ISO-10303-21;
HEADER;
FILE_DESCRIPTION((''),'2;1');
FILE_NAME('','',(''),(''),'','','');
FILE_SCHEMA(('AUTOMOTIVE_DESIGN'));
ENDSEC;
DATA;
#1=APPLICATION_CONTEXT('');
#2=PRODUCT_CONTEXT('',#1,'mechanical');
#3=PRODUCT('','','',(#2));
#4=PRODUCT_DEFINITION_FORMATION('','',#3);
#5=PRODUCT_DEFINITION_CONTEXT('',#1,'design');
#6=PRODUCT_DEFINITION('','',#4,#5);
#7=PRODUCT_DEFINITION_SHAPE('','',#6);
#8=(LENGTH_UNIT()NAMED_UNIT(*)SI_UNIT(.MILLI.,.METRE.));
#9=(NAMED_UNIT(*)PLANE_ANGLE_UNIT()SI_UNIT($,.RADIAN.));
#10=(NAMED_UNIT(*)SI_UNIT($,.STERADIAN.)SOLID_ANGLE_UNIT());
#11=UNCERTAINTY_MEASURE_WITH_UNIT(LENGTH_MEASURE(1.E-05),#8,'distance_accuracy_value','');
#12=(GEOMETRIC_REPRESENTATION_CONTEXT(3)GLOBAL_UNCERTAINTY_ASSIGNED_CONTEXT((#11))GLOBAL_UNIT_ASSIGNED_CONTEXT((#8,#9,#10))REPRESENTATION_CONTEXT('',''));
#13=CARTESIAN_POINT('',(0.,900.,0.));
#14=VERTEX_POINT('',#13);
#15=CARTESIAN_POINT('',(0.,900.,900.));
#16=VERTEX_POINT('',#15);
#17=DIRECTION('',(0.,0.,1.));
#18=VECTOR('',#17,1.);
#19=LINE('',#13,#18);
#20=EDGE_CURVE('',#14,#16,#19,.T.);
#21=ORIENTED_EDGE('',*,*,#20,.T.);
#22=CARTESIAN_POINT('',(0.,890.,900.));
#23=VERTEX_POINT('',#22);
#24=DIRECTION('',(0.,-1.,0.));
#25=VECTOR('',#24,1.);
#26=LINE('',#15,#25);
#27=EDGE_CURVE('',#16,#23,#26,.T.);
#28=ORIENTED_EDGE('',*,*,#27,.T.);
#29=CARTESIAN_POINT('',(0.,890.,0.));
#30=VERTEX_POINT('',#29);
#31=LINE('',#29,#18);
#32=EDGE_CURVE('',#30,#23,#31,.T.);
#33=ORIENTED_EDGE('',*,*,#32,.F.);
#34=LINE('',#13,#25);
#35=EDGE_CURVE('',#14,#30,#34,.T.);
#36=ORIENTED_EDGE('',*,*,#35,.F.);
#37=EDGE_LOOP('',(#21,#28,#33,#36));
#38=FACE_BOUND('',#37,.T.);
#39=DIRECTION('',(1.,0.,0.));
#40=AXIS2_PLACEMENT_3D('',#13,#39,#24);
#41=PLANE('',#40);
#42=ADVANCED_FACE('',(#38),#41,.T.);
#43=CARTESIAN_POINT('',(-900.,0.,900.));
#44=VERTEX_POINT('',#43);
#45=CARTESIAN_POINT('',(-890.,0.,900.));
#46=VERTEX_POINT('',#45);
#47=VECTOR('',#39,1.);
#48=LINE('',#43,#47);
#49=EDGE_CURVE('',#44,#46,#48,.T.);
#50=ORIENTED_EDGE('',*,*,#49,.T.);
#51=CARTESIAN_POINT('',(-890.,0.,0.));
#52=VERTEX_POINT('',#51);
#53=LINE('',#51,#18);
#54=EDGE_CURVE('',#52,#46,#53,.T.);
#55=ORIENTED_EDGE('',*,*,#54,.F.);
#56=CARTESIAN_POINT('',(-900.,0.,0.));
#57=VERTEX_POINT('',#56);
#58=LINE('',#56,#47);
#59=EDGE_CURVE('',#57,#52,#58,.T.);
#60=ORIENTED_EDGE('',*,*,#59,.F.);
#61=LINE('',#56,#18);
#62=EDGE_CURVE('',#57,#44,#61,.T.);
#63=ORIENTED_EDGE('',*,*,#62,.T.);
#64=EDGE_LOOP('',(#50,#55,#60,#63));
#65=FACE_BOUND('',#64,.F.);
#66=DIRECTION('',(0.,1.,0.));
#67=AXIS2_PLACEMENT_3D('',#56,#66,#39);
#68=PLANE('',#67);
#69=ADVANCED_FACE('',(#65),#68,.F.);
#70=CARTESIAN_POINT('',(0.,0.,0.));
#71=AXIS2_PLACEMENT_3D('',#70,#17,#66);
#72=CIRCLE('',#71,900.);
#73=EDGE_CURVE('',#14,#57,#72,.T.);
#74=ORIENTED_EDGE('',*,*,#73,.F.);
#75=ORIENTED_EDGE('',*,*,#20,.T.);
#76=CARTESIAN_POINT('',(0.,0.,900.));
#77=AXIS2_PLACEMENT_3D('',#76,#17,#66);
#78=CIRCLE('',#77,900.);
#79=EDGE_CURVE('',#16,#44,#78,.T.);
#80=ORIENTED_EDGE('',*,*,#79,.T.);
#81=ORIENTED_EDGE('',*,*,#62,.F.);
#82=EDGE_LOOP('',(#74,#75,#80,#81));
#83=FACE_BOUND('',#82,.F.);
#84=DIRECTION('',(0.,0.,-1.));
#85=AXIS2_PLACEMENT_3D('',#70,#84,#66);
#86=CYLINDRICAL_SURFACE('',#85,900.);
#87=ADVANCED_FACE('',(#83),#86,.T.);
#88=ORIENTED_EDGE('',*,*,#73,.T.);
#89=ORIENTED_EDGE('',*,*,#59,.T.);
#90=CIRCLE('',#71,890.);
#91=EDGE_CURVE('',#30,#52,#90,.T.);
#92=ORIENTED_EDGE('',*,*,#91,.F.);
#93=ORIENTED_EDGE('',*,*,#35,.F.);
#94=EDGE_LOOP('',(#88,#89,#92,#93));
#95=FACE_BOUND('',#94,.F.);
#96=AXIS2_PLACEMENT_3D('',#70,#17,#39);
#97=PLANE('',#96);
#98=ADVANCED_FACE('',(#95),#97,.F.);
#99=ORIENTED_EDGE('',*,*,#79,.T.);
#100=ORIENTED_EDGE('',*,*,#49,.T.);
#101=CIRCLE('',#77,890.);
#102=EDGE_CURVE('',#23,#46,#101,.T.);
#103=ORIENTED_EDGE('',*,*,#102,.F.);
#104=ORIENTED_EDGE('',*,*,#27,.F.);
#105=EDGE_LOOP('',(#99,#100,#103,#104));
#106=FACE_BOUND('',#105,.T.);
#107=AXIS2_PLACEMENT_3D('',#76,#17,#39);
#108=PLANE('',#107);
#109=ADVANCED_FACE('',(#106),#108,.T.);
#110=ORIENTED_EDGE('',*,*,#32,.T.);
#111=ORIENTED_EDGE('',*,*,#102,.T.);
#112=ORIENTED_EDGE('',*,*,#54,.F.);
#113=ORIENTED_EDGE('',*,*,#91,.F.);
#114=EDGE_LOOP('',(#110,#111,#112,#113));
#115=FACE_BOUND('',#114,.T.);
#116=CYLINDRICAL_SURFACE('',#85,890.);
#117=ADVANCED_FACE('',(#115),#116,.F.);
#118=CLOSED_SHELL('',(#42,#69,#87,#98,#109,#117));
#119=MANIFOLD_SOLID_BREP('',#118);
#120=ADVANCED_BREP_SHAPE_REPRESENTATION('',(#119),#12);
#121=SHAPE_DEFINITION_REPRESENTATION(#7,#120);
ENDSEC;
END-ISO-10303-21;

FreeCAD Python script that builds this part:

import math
import FreeCAD as App
import Part
import Sketcher

doc = App.newDocument("Part")
body = doc.addObject("PartDesign::Body", "Body")

# Sketch on XY plane
sketch1 = body.newObject("Sketcher::SketchObject", "Sketch")
sketch1.AttachmentSupport = (doc.getObject("XY_Plane"), [""])
sketch1.MapMode = "FlatFace"
sketch1.addGeometry(Part.LineSegment(App.Vector(0, 890, 0), App.Vector(0, 900, 0)), False)
sketch1.addGeometry(Part.ArcOfCircle(Part.Circle(App.Vector(0, 0, 0), App.Vector(0, 0, 1), 900), math.radians(90), math.radians(180)), False)
sketch1.addGeometry(Part.LineSegment(App.Vector(-900, 0, 0), App.Vector(-890, 0, 0)), False)
sketch1.addGeometry(Part.ArcOfCircle(Part.Circle(App.Vector(0, 0, 0), App.Vector(0, 0, 1), 890), math.radians(90), math.radians(180)), False)
sketch1.addConstraint(Sketcher.Constraint("Coincident", 0, 2, 1, 1))
sketch1.addConstraint(Sketcher.Constraint("Coincident", 1, 2, 2, 1))
sketch1.addConstraint(Sketcher.Constraint("Coincident", 2, 2, 3, 2))
sketch1.addConstraint(Sketcher.Constraint("Coincident", 3, 1, 0, 1))
sketch1.addConstraint(Sketcher.Constraint("Vertical", 0))
sketch1.addConstraint(Sketcher.Constraint("Horizontal", 2))
sketch1.addConstraint(Sketcher.Constraint("Coincident", 1, 3, -1, 1))
sketch1.addConstraint(Sketcher.Constraint("Coincident", 3, 3, -1, 1))
sketch1.addConstraint(Sketcher.Constraint("PointOnObject", 0, 2, -2))
sketch1.addConstraint(Sketcher.Constraint("PointOnObject", 2, 2, -1))
sketch1.addConstraint(Sketcher.Constraint("Radius", 1, 900.0))
sketch1.addConstraint(Sketcher.Constraint("DistanceX", 2, 1, 2, 2, 10.0))
pad1 = body.newObject("PartDesign::Pad", "Pad")
pad1.Profile = sketch1
pad1.Length = 900

doc.recompute()
